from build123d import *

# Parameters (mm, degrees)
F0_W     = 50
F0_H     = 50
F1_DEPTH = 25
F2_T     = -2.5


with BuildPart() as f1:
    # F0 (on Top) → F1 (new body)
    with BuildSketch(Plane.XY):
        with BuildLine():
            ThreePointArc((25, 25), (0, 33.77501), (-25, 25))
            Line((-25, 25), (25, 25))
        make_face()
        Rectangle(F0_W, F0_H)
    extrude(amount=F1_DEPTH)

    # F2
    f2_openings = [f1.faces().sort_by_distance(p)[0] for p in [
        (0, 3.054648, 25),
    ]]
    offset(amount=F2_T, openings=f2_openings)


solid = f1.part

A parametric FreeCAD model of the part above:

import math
import FreeCAD as App
import Part
import Sketcher
Q = App.Units.Quantity


def faces_at(feature, points):
    """Names of the faces that lie closest to the given points."""
    faces = feature.Shape.Faces
    near = lambda p: min(range(len(faces)), key=lambda i: faces[i].distToShape(Part.Vertex(*p))[0])
    return sorted({f"Face{near(p) + 1}" for p in points})

doc = App.newDocument("Part")
body = doc.addObject("PartDesign::Body", "Body")

# Sketch on XY plane
sketch1 = body.newObject("Sketcher::SketchObject", "Sketch")
sketch1.AttachmentSupport = (doc.getObject("XY_Plane"), [""])
sketch1.MapMode = "FlatFace"
sketch1.addGeometry(Part.ArcOfCircle(Part.Circle(App.Vector(0, -6.22499, 0), App.Vector(0, 0, 1), 40), math.radians(51.317813), math.radians(128.682187)), False)
sketch1.addGeometry(Part.LineSegment(App.Vector(-25, 25, 0), App.Vector(-25, -25, 0)), False)
sketch1.addGeometry(Part.LineSegment(App.Vector(-25, -25, 0), App.Vector(25, -25, 0)), False)
sketch1.addGeometry(Part.LineSegment(App.Vector(25, -25, 0), App.Vector(25, 25, 0)), False)
sketch1.addConstraint(Sketcher.Constraint("Coincident", 0, 2, 1, 1))
sketch1.addConstraint(Sketcher.Constraint("Coincident", 1, 2, 2, 1))
sketch1.addConstraint(Sketcher.Constraint("Coincident", 2, 2, 3, 1))
sketch1.addConstraint(Sketcher.Constraint("Coincident", 3, 2, 0, 1))
sketch1.addConstraint(Sketcher.Constraint("Vertical", 1))
sketch1.addConstraint(Sketcher.Constraint("Horizontal", 2))
sketch1.addConstraint(Sketcher.Constraint("Vertical", 3))
sketch1.addConstraint(Sketcher.Constraint("Symmetric", 0, 2, 2, 2, -1, 1))
sketch1.addConstraint(Sketcher.Constraint("PointOnObject", 0, 3, -2))
sketch1.addConstraint(Sketcher.Constraint("Equal", 2, 1))
sketch1.addConstraint(Sketcher.Constraint("Radius", 0, Q("40 mm")))
sketch1.addConstraint(Sketcher.Constraint("DistanceX", 2, 1, 2, 2, Q("50 mm")))
pad1 = body.newObject("PartDesign::Pad", "Pad")
pad1.Profile = sketch1
pad1.Length = 25
doc.recompute()

thickness = body.newObject("PartDesign::Thickness", "Thickness")
thickness.Base = (pad1, faces_at(pad1, [(0, 4.388, 25)]))
thickness.Value = 2.5
thickness.Reversed = True
thickness.Join = "Arc"

doc.recompute()
